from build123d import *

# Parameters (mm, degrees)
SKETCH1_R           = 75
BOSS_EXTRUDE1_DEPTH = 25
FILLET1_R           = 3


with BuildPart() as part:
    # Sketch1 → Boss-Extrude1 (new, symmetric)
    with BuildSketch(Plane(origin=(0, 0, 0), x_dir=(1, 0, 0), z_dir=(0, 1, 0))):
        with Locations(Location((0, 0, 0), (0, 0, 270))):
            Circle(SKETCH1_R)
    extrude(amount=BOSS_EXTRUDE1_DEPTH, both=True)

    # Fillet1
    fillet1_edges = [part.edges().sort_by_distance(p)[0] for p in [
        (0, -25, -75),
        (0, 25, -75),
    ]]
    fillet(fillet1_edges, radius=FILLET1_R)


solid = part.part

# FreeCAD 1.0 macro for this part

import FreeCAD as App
import Part
import Sketcher
from FreeCAD import Vector
Q = App.Units.Quantity


def edges_at(feature, points):
    """Names of the edges that pass closest to the given points."""
    edges = feature.Shape.Edges
    near = lambda p: min(range(len(edges)), key=lambda i: edges[i].distToShape(Part.Vertex(*p))[0])
    return sorted({f"Edge{near(p) + 1}" for p in points})

doc = App.newDocument("Part")
body = doc.addObject("PartDesign::Body", "Body")

# Sketch on XZ plane
sketch1 = body.newObject("Sketcher::SketchObject", "Sketch")
sketch1.AttachmentSupport = (doc.getObject("XZ_Plane"), [""])
sketch1.MapMode = "FlatFace"
sketch1.addGeometry(Part.Circle(Vector(0, 0, 0), Vector(0, 0, 1), 75), False)
sketch1.addConstraint([
    Sketcher.Constraint("Coincident", 0, 3, -1, 1),
    Sketcher.Constraint("Diameter", 0, Q("150 mm")),
])
pad1 = body.newObject("PartDesign::Pad", "Pad")
pad1.Profile = sketch1
pad1.Length = 50
pad1.Midplane = True
doc.recompute()

fillet = body.newObject("PartDesign::Fillet", "Fillet")
fillet.Base = (pad1, edges_at(pad1, [(0, -25, -75), (0, 25, -75)]))
fillet.Radius = 3

doc.recompute()
